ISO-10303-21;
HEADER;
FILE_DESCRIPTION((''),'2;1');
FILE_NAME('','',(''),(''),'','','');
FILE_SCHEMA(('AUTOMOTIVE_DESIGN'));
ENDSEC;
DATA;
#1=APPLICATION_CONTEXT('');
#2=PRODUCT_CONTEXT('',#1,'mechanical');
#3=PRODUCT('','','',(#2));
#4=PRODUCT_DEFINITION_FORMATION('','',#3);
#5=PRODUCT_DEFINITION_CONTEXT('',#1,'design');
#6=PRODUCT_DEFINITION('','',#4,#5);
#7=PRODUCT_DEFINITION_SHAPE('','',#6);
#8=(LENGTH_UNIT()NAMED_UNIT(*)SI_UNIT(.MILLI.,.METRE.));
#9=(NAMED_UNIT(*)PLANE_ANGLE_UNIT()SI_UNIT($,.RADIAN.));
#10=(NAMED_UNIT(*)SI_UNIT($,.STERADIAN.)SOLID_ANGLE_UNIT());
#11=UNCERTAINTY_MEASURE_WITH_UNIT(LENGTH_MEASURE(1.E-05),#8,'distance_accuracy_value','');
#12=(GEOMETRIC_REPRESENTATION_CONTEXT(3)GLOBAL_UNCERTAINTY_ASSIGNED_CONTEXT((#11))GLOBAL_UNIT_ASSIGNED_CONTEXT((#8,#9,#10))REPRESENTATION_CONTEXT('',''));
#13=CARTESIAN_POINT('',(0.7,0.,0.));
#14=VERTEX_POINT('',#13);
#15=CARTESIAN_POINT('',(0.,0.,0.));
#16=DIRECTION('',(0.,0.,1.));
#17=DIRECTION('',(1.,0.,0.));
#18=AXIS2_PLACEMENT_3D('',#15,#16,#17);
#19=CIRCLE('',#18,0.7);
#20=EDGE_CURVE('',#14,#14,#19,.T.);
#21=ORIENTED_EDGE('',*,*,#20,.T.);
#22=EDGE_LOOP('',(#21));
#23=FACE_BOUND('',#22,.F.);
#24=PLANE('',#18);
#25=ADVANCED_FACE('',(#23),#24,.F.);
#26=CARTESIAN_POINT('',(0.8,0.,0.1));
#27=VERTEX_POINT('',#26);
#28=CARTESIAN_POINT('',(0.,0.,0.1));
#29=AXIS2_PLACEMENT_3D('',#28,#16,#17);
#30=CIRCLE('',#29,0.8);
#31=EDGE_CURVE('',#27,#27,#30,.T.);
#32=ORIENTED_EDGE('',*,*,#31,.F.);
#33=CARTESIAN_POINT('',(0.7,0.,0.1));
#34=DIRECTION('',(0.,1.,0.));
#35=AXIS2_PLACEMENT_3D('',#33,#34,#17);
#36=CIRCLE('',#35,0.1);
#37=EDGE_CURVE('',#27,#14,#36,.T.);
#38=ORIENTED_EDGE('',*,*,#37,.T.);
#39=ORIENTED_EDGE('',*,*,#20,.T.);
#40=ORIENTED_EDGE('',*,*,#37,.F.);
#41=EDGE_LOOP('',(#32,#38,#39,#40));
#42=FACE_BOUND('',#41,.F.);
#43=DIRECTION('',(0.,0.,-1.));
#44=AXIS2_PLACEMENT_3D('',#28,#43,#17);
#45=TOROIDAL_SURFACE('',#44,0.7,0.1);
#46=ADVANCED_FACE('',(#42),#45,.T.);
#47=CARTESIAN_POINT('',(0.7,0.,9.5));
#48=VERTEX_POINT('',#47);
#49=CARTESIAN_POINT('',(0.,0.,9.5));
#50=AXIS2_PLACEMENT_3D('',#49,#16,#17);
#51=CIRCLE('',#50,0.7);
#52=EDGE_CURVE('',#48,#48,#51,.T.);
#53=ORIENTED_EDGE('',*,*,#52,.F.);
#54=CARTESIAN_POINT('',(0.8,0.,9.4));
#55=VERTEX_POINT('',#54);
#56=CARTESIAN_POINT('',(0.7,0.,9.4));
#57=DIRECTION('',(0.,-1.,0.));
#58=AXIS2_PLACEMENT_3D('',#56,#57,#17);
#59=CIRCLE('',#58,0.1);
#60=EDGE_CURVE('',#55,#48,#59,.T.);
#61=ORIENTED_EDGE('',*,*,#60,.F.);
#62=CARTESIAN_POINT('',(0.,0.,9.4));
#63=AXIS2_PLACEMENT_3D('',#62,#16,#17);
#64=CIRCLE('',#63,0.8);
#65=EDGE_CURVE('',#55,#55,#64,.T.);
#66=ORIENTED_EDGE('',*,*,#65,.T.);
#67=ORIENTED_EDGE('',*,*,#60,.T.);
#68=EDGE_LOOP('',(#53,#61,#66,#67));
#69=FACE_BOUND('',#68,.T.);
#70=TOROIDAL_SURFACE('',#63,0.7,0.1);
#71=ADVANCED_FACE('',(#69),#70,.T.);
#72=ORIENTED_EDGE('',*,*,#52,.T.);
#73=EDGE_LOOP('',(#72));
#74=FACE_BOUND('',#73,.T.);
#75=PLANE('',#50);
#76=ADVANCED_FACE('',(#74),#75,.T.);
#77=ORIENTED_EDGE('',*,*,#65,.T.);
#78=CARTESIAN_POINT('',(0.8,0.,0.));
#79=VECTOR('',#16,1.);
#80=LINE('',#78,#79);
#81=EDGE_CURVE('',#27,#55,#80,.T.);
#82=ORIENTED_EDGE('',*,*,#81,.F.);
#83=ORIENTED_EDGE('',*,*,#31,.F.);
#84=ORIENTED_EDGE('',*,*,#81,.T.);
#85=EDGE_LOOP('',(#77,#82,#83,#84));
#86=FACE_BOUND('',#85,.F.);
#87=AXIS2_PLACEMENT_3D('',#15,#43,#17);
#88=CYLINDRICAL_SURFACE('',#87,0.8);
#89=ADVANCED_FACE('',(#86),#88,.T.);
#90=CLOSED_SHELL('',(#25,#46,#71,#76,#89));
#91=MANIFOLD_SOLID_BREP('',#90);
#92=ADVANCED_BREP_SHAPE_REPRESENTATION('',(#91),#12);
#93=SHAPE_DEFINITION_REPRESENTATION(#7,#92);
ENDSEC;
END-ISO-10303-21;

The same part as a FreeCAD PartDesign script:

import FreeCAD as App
import Part
import Sketcher
from FreeCAD import Vector
Q = App.Units.Quantity


def edges_at(feature, points):
    """Names of the edges that pass closest to the given points."""
    edges = feature.Shape.Edges
    near = lambda p: min(range(len(edges)), key=lambda i: edges[i].distToShape(Part.Vertex(*p))[0])
    return sorted({f"Edge{near(p) + 1}" for p in points})

doc = App.newDocument("Part")
body = doc.addObject("PartDesign::Body", "Body")

# Sketch on XY plane
sketch1 = body.newObject("Sketcher::SketchObject", "Sketch")
sketch1.AttachmentSupport = (doc.getObject("XY_Plane"), [""])
sketch1.MapMode = "FlatFace"
sketch1.addGeometry(Part.Circle(Vector(0, 0, 0), Vector(0, 0, 1), 0.8), False)
sketch1.addConstraint([
    Sketcher.Constraint("Coincident", 0, 3, -1, 1),
    Sketcher.Constraint("Diameter", 0, Q("1.6 mm")),
])
pad1 = body.newObject("PartDesign::Pad", "Pad")
pad1.Profile = sketch1
pad1.Length = 9.5
doc.recompute()

fillet = body.newObject("PartDesign::Fillet", "Fillet")
fillet.Base = (pad1, edges_at(pad1, [(-0.8, 0, 0), (-0.8, 0, 9.5)]))
fillet.Radius = 0.1

doc.recompute()
